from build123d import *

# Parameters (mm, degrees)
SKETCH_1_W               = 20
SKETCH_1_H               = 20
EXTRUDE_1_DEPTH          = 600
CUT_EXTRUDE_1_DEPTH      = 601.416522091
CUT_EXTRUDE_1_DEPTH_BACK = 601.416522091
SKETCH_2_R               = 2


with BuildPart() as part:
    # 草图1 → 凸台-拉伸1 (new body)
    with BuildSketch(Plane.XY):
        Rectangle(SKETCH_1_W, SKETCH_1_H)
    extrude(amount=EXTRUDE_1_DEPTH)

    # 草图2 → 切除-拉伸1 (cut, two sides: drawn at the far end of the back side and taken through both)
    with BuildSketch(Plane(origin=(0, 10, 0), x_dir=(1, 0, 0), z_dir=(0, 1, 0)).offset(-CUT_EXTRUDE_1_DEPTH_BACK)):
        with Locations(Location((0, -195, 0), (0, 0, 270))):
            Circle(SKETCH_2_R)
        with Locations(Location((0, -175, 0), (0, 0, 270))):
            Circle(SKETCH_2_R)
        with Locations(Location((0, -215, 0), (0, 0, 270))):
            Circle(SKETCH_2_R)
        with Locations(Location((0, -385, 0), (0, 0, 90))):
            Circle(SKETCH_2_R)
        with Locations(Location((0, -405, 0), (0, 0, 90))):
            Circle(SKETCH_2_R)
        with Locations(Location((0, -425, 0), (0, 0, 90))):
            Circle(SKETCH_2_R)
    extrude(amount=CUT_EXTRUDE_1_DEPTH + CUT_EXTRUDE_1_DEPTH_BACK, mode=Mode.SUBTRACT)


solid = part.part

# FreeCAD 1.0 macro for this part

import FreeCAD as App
import Part
import Sketcher
Q = App.Units.Quantity


def add_polygon(sketch, points):
    """Adds a closed chain of lines whose ends are joined by coincident constraints."""
    first, n = sketch.GeometryCount, len(points)
    for a, b in zip(points, points[1:] + points[:1]):
        sketch.addGeometry(Part.LineSegment(App.Vector(*a, 0), App.Vector(*b, 0)), False)
    for i in range(n):
        sketch.addConstraint(Sketcher.Constraint("Coincident", first + i, 2, first + (i + 1) % n, 1))

doc = App.newDocument("Part")
params = doc.addObject("Spreadsheet::Sheet", "Params")
for row, (alias, value) in enumerate([
    ("sketch1_width", "20 mm"),
    ("pad1_length", "600 mm"),
    ("sketch2_diameter", "4 mm"),
], start=1):
    params.set(f"A{row}", alias)
    params.set(f"B{row}", "=" + value)
    params.setAlias(f"B{row}", alias)

body = doc.addObject("PartDesign::Body", "Body")

# Sketch on XY plane
sketch1 = body.newObject("Sketcher::SketchObject", "Sketch")
sketch1.AttachmentSupport = (doc.getObject("XY_Plane"), [""])
sketch1.MapMode = "FlatFace"
add_polygon(sketch1, [(-10, 10), (-10, -10), (10, -10), (10, 10)])  # lines 0-3
sketch1.addConstraint([
    Sketcher.Constraint("Vertical", 0),
    Sketcher.Constraint("Horizontal", 1),
    Sketcher.Constraint("Vertical", 2),
    Sketcher.Constraint("Horizontal", 3),
    Sketcher.Constraint("Symmetric", 0, 2, 2, 2, -1, 1),
    Sketcher.Constraint("Equal", 3, 0),
    Sketcher.Constraint("DistanceX", 1, 1, 1, 2, Q("20 mm")),
])
sketch1.setExpression("Constraints[10]", "Params.sketch1_width")
pad1 = body.newObject("PartDesign::Pad", "Pad")
pad1.Profile = sketch1
pad1.setExpression("Length", "Params.pad1_length")

# Sketch on XZ plane
sketch2 = body.newObject("Sketcher::SketchObject", "Sketch001")
sketch2.AttachmentSupport = (doc.getObject("XZ_Plane"), [""])
sketch2.MapMode = "FlatFace"
sketch2.AttachmentOffset = App.Placement(App.Vector(0, 0, -10), App.Rotation())
sketch2.addGeometry([
    Part.Circle(App.Vector(0, 195, 0), App.Vector(0, 0, 1), 2),  # 0
    Part.Circle(App.Vector(0, 175, 0), App.Vector(0, 0, 1), 2),  # 1
    Part.Circle(App.Vector(0, 215, 0), App.Vector(0, 0, 1), 2),  # 2
    Part.Circle(App.Vector(0, 385, 0), App.Vector(0, 0, 1), 2),  # 3
    Part.Circle(App.Vector(0, 405, 0), App.Vector(0, 0, 1), 2),  # 4
    Part.Circle(App.Vector(0, 425, 0), App.Vector(0, 0, 1), 2),  # 5
], False)
sketch2.addConstraint([
    Sketcher.Constraint("Equal", 0, 1),
    Sketcher.Constraint("Equal", 1, 2),
    Sketcher.Constraint("Equal", 2, 3),
    Sketcher.Constraint("Equal", 3, 4),
    Sketcher.Constraint("Equal", 4, 5),
    Sketcher.Constraint("PointOnObject", 0, 3, -2),
    Sketcher.Constraint("PointOnObject", 1, 3, -2),
    Sketcher.Constraint("PointOnObject", 2, 3, -2),
    Sketcher.Constraint("PointOnObject", 3, 3, -2),
    Sketcher.Constraint("PointOnObject", 4, 3, -2),
    Sketcher.Constraint("PointOnObject", 5, 3, -2),
    Sketcher.Constraint("Diameter", 0, Q("4 mm")),
    Sketcher.Constraint("DistanceY", -1, 1, 0, 3, Q("195 mm")),
    Sketcher.Constraint("DistanceY", -1, 1, 1, 3, Q("175 mm")),
    Sketcher.Constraint("DistanceY", -1, 1, 2, 3, Q("215 mm")),
    Sketcher.Constraint("DistanceY", -1, 1, 3, 3, Q("385 mm")),
    Sketcher.Constraint("DistanceY", -1, 1, 4, 3, Q("405 mm")),
    Sketcher.Constraint("DistanceY", -1, 1, 5, 3, Q("425 mm")),
])
sketch2.setExpression("Constraints[11]", "Params.sketch2_diameter")
pocket1 = body.newObject("PartDesign::Pocket", "Pocket")
pocket1.Profile = sketch2
pocket1.Type = "ThroughAll"
pocket1.Midplane = True

doc.recompute()
